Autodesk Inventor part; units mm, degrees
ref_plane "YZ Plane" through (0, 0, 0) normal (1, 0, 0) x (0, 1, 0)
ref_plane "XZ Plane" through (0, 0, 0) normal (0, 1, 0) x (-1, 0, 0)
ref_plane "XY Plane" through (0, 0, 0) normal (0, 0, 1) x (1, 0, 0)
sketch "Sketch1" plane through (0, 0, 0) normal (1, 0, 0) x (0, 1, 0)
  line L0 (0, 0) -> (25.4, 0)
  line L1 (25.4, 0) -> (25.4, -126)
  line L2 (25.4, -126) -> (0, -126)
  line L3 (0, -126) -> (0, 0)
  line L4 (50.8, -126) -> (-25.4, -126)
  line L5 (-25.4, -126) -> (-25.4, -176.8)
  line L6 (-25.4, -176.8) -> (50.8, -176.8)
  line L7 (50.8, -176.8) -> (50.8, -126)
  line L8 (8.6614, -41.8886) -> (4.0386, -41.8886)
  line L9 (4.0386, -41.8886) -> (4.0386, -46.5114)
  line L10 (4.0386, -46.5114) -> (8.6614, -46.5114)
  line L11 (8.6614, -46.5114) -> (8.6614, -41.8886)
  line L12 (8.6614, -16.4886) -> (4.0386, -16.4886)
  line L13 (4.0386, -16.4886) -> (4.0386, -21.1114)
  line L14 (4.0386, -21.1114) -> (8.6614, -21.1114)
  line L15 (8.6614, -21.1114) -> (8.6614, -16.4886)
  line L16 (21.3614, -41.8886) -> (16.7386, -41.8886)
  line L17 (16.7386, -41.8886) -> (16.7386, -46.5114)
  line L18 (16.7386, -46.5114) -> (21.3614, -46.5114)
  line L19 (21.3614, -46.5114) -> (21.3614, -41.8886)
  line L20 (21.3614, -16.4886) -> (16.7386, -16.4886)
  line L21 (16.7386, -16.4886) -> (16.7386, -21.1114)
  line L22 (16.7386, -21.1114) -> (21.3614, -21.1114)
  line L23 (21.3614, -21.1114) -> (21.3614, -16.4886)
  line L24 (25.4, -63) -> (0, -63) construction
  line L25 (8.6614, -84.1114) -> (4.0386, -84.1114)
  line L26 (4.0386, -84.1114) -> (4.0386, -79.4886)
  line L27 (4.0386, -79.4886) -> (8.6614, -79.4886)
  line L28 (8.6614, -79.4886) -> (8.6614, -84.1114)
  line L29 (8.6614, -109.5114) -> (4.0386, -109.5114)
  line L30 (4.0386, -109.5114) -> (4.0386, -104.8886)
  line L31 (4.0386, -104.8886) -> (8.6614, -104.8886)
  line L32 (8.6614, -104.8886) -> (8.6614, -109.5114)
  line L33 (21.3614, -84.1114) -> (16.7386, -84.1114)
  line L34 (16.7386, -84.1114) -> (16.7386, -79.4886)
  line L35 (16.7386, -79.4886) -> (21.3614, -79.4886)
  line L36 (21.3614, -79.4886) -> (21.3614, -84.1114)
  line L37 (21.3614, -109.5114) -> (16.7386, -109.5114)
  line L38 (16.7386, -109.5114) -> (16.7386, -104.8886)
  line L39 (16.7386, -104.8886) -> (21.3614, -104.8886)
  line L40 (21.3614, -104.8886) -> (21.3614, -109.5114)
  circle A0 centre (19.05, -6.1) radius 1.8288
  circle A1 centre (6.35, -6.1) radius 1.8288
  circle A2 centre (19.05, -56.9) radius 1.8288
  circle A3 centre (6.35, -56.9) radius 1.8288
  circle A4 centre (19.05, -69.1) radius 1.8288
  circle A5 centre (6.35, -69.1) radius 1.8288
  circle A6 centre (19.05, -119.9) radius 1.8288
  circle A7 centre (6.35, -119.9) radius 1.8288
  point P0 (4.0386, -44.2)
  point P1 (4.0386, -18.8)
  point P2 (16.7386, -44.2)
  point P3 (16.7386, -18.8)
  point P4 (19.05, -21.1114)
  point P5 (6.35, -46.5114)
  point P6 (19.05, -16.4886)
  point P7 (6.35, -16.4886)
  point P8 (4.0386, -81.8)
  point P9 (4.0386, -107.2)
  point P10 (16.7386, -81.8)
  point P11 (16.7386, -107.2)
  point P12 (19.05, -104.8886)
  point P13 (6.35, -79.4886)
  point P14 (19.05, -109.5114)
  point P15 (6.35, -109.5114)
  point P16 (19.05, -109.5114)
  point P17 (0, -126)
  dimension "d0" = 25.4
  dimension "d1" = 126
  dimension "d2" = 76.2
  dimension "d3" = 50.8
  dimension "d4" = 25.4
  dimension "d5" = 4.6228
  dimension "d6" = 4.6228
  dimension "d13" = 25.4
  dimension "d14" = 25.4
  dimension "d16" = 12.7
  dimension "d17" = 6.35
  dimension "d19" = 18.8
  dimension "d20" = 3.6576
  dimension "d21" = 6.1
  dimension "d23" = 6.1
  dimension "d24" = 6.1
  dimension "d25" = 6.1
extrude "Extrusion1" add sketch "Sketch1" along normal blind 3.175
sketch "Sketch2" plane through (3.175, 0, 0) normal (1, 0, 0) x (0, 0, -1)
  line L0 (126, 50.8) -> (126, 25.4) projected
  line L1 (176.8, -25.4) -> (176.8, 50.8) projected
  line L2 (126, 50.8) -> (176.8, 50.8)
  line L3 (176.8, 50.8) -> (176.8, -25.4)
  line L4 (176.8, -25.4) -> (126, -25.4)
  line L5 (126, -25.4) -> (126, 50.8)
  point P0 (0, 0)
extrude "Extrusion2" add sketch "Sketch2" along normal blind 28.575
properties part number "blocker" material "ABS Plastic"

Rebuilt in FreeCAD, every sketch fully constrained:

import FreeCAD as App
import Part
import Sketcher

V = App.Vector
Q = App.Units.Quantity

doc = App.newDocument("Part")
body = doc.addObject("PartDesign::Body", "Body")

sketch1 = body.newObject("Sketcher::SketchObject", "Sketch")
sketch1.AttachmentSupport = (doc.getObject("YZ_Plane"), [""])
sketch1.MapMode = "FlatFace"
sketch1.addGeometry([
    Part.LineSegment(V(25.4, 0, 0), V(0, 0, 0)),
    Part.LineSegment(V(0, 0, 0), V(0, -126, 0)),
    Part.LineSegment(V(0, -126, 0), V(-25.4, -126, 0)),
    Part.LineSegment(V(-25.4, -126, 0), V(-25.4, -176.8, 0)),
    Part.LineSegment(V(-25.4, -176.8, 0), V(50.8, -176.8, 0)),
    Part.LineSegment(V(50.8, -176.8, 0), V(50.8, -126, 0)),
    Part.LineSegment(V(50.8, -126, 0), V(25.4, -126, 0)),
    Part.LineSegment(V(25.4, -126, 0), V(25.4, 0, 0)),
    Part.Circle(V(6.3, -119.9, 0), V(0, 0, 1), 1.8),
    Part.LineSegment(V(8.7, -104.9, 0), V(8.7, -109.5, 0)),
    Part.LineSegment(V(8.7, -109.5, 0), V(4, -109.5, 0)),
    Part.LineSegment(V(4, -109.5, 0), V(4, -104.9, 0)),
    Part.LineSegment(V(4, -104.9, 0), V(8.7, -104.9, 0)),
    Part.Circle(V(19.1, -119.9, 0), V(0, 0, 1), 1.8),
    Part.LineSegment(V(21.4, -104.9, 0), V(21.4, -109.5, 0)),
    Part.LineSegment(V(21.4, -109.5, 0), V(16.7, -109.5, 0)),
    Part.LineSegment(V(16.7, -109.5, 0), V(16.7, -104.9, 0)),
    Part.LineSegment(V(16.7, -104.9, 0), V(21.4, -104.9, 0)),
    Part.LineSegment(V(8.7, -79.5, 0), V(8.7, -84.1, 0)),
    Part.LineSegment(V(8.7, -84.1, 0), V(4, -84.1, 0)),
    Part.LineSegment(V(4, -84.1, 0), V(4, -79.5, 0)),
    Part.LineSegment(V(4, -79.5, 0), V(8.7, -79.5, 0)),
    Part.Circle(V(6.3, -69.1, 0), V(0, 0, 1), 1.8),
    Part.Circle(V(6.3, -56.9, 0), V(0, 0, 1), 1.8),
    Part.LineSegment(V(4, -41.9, 0), V(8.7, -41.9, 0)),
    Part.LineSegment(V(8.7, -41.9, 0), V(8.7, -46.5, 0)),
    Part.LineSegment(V(8.7, -46.5, 0), V(4, -46.5, 0)),
    Part.LineSegment(V(4, -46.5, 0), V(4, -41.9, 0)),
    Part.LineSegment(V(4, -16.5, 0), V(8.7, -16.5, 0)),
    Part.LineSegment(V(8.7, -16.5, 0), V(8.7, -21.1, 0)),
    Part.LineSegment(V(8.7, -21.1, 0), V(4, -21.1, 0)),
    Part.LineSegment(V(4, -21.1, 0), V(4, -16.5, 0)),
    Part.Circle(V(6.3, -6.1, 0), V(0, 0, 1), 1.8),
    Part.LineSegment(V(21.4, -79.5, 0), V(21.4, -84.1, 0)),
    Part.LineSegment(V(21.4, -84.1, 0), V(16.7, -84.1, 0)),
    Part.LineSegment(V(16.7, -84.1, 0), V(16.7, -79.5, 0)),
    Part.LineSegment(V(16.7, -79.5, 0), V(21.4, -79.5, 0)),
    Part.Circle(V(19.1, -69.1, 0), V(0, 0, 1), 1.8),
    Part.Circle(V(19.1, -56.9, 0), V(0, 0, 1), 1.8),
    Part.LineSegment(V(16.7, -41.9, 0), V(21.4, -41.9, 0)),
    Part.LineSegment(V(21.4, -41.9, 0), V(21.4, -46.5, 0)),
    Part.LineSegment(V(21.4, -46.5, 0), V(16.7, -46.5, 0)),
    Part.LineSegment(V(16.7, -46.5, 0), V(16.7, -41.9, 0)),
    Part.LineSegment(V(16.7, -16.5, 0), V(21.4, -16.5, 0)),
    Part.LineSegment(V(21.4, -16.5, 0), V(21.4, -21.1, 0)),
    Part.LineSegment(V(21.4, -21.1, 0), V(16.7, -21.1, 0)),
    Part.LineSegment(V(16.7, -21.1, 0), V(16.7, -16.5, 0)),
    Part.Circle(V(19.1, -6.1, 0), V(0, 0, 1), 1.8),
], False)
sketch1.addConstraint([
    Sketcher.Constraint("Coincident", 0, 2, 1, 1),
    Sketcher.Constraint("Coincident", 1, 2, 2, 1),
    Sketcher.Constraint("Coincident", 2, 2, 3, 1),
    Sketcher.Constraint("Coincident", 3, 2, 4, 1),
    Sketcher.Constraint("Coincident", 4, 2, 5, 1),
    Sketcher.Constraint("Coincident", 5, 2, 6, 1),
    Sketcher.Constraint("Coincident", 6, 2, 7, 1),
    Sketcher.Constraint("Coincident", 7, 2, 0, 1),
    Sketcher.Constraint("Coincident", 9, 2, 10, 1),
    Sketcher.Constraint("Coincident", 10, 2, 11, 1),
    Sketcher.Constraint("Coincident", 11, 2, 12, 1),
    Sketcher.Constraint("Coincident", 12, 2, 9, 1),
    Sketcher.Constraint("Coincident", 14, 2, 15, 1),
    Sketcher.Constraint("Coincident", 15, 2, 16, 1),
    Sketcher.Constraint("Coincident", 16, 2, 17, 1),
    Sketcher.Constraint("Coincident", 17, 2, 14, 1),
    Sketcher.Constraint("Coincident", 18, 2, 19, 1),
    Sketcher.Constraint("Coincident", 19, 2, 20, 1),
    Sketcher.Constraint("Coincident", 20, 2, 21, 1),
    Sketcher.Constraint("Coincident", 21, 2, 18, 1),
    Sketcher.Constraint("Coincident", 24, 2, 25, 1),
    Sketcher.Constraint("Coincident", 25, 2, 26, 1),
    Sketcher.Constraint("Coincident", 26, 2, 27, 1),
    Sketcher.Constraint("Coincident", 27, 2, 24, 1),
    Sketcher.Constraint("Coincident", 28, 2, 29, 1),
    Sketcher.Constraint("Coincident", 29, 2, 30, 1),
    Sketcher.Constraint("Coincident", 30, 2, 31, 1),
    Sketcher.Constraint("Coincident", 31, 2, 28, 1),
    Sketcher.Constraint("Coincident", 33, 2, 34, 1),
    Sketcher.Constraint("Coincident", 34, 2, 35, 1),
    Sketcher.Constraint("Coincident", 35, 2, 36, 1),
    Sketcher.Constraint("Coincident", 36, 2, 33, 1),
    Sketcher.Constraint("Coincident", 39, 2, 40, 1),
    Sketcher.Constraint("Coincident", 40, 2, 41, 1),
    Sketcher.Constraint("Coincident", 41, 2, 42, 1),
    Sketcher.Constraint("Coincident", 42, 2, 39, 1),
    Sketcher.Constraint("Coincident", 43, 2, 44, 1),
    Sketcher.Constraint("Coincident", 44, 2, 45, 1),
    Sketcher.Constraint("Coincident", 45, 2, 46, 1),
    Sketcher.Constraint("Coincident", 46, 2, 43, 1),
    Sketcher.Constraint("Horizontal", 0),
    Sketcher.Constraint("Vertical", 1),
    Sketcher.Constraint("Horizontal", 2),
    Sketcher.Constraint("Vertical", 3),
    Sketcher.Constraint("Horizontal", 4),
    Sketcher.Constraint("Vertical", 5),
    Sketcher.Constraint("Horizontal", 6),
    Sketcher.Constraint("Vertical", 7),
    Sketcher.Constraint("Vertical", 9),
    Sketcher.Constraint("Horizontal", 10),
    Sketcher.Constraint("Vertical", 11),
    Sketcher.Constraint("Horizontal", 12),
    Sketcher.Constraint("Vertical", 14),
    Sketcher.Constraint("Horizontal", 15),
    Sketcher.Constraint("Vertical", 16),
    Sketcher.Constraint("Horizontal", 17),
    Sketcher.Constraint("Vertical", 18),
    Sketcher.Constraint("Horizontal", 19),
    Sketcher.Constraint("Vertical", 20),
    Sketcher.Constraint("Horizontal", 21),
    Sketcher.Constraint("Horizontal", 24),
    Sketcher.Constraint("Vertical", 25),
    Sketcher.Constraint("Horizontal", 26),
    Sketcher.Constraint("Vertical", 27),
    Sketcher.Constraint("Horizontal", 28),
    Sketcher.Constraint("Vertical", 29),
    Sketcher.Constraint("Horizontal", 30),
    Sketcher.Constraint("Vertical", 31),
    Sketcher.Constraint("Vertical", 33),
    Sketcher.Constraint("Horizontal", 34),
    Sketcher.Constraint("Vertical", 35),
    Sketcher.Constraint("Horizontal", 36),
    Sketcher.Constraint("Horizontal", 39),
    Sketcher.Constraint("Vertical", 40),
    Sketcher.Constraint("Horizontal", 41),
    Sketcher.Constraint("Vertical", 42),
    Sketcher.Constraint("Horizontal", 43),
    Sketcher.Constraint("Vertical", 44),
    Sketcher.Constraint("Horizontal", 45),
    Sketcher.Constraint("Vertical", 46),
    Sketcher.Constraint("Coincident", 0, 2, -1, 1),
    Sketcher.Constraint("Equal", 8, 13),
    Sketcher.Constraint("Equal", 13, 22),
    Sketcher.Constraint("Equal", 22, 23),
    Sketcher.Constraint("Equal", 23, 32),
    Sketcher.Constraint("Equal", 32, 37),
    Sketcher.Constraint("Equal", 37, 38),
    Sketcher.Constraint("Equal", 38, 47),
    Sketcher.Constraint("Symmetric", 2, 2, 6, 2, -2),
    Sketcher.Constraint("Horizontal", 8, 3, 13, 3),
    Sketcher.Constraint("Horizontal", 22, 3, 37, 3),
    Sketcher.Constraint("Horizontal", 23, 3, 38, 3),
    Sketcher.Constraint("Horizontal", 32, 3, 47, 3),
    Sketcher.Constraint("Horizontal", 10, 2, 14, 2),
    Sketcher.Constraint("Horizontal", 12, 2, 16, 2),
    Sketcher.Constraint("Horizontal", 19, 2, 33, 2),
    Sketcher.Constraint("Horizontal", 21, 2, 35, 2),
    Sketcher.Constraint("Horizontal", 27, 2, 39, 2),
    Sketcher.Constraint("Horizontal", 26, 2, 40, 2),
    Sketcher.Constraint("Horizontal", 31, 2, 43, 2),
    Sketcher.Constraint("Horizontal", 30, 2, 44, 2),
    Sketcher.Constraint("Vertical", 8, 3, 22, 3),
    Sketcher.Constraint("Vertical", 22, 3, 23, 3),
    Sketcher.Constraint("Vertical", 23, 3, 32, 3),
    Sketcher.Constraint("Vertical", 13, 3, 37, 3),
    Sketcher.Constraint("Vertical", 37, 3, 38, 3),
    Sketcher.Constraint("Vertical", 38, 3, 47, 3),
    Sketcher.Constraint("Vertical", 12, 2, 18, 2),
    Sketcher.Constraint("Vertical", 11, 2, 19, 2),
    Sketcher.Constraint("Vertical", 21, 2, 24, 2),
    Sketcher.Constraint("Vertical", 20, 2, 26, 2),
    Sketcher.Constraint("Vertical", 25, 2, 28, 2),
    Sketcher.Constraint("Vertical", 27, 2, 30, 2),
    Sketcher.Constraint("Vertical", 17, 2, 33, 2),
    Sketcher.Constraint("Vertical", 16, 2, 34, 2),
    Sketcher.Constraint("Vertical", 36, 2, 39, 2),
    Sketcher.Constraint("Vertical", 35, 2, 41, 2),
    Sketcher.Constraint("Vertical", 40, 2, 43, 2),
    Sketcher.Constraint("Vertical", 42, 2, 45, 2),
    Sketcher.Constraint("Equal", 2, 6),
    Sketcher.Constraint("Equal", 12, 15),
    Sketcher.Constraint("Equal", 45, 9),
    Sketcher.Constraint("Equal", 16, 18),
    Sketcher.Constraint("Equal", 20, 25),
    Sketcher.Constraint("Equal", 27, 29),
    Sketcher.Constraint("DistanceX", 0, 2, 0, 1, Q("1 in")),
    Sketcher.Constraint("DistanceY", 3, 2, 3, 1, Q("2 in")),
    Sketcher.Constraint("Diameter", 8, Q("0.144 in")),
    Sketcher.Constraint("DistanceY", 8, 3, 22, 3, Q("2 in")),
    Sketcher.Constraint("DistanceY", 23, 3, 32, 3, Q("2 in")),
    Sketcher.Constraint("DistanceY", 24, 2, 28, 2, Q("1 in")),
    Sketcher.Constraint("DistanceX", 8, 3, 13, 3, Q("0.5 in")),
    Sketcher.Constraint("DistanceX", 9, 2, 14, 2, Q("0.5 in")),
    Sketcher.Constraint("DistanceX", 10, 2, 10, 1, Q("0.182 in")),
    Sketcher.Constraint("DistanceX", -1, 1, 8, 3, Q("0.25 in")),
    Sketcher.Constraint("DistanceY", 1, 2, 1, 1, 126.0),
    Sketcher.Constraint("DistanceY", 32, 3, -1, 1, 6.1),
    Sketcher.Constraint("DistanceY", 1, 2, 8, 3, 6.1),
    Sketcher.Constraint("DistanceX", -1, 1, 9, 2, Q("0.341 in")),
    Sketcher.Constraint("DistanceY", 8, 3, 9, 2, Q("0.409 in")),
    Sketcher.Constraint("DistanceY", 18, 2, 22, 3, Q("0.591 in")),
    Sketcher.Constraint("DistanceY", 23, 3, 24, 2, Q("0.591 in")),
])
pad1 = body.newObject("PartDesign::Pad", "Pad")
pad1.Profile = sketch1
pad1.Length = Q("0.125 in")

sketch2 = body.newObject("Sketcher::SketchObject", "Sketch001")
sketch2.AttachmentSupport = (doc.getObject("YZ_Plane"), [""])
sketch2.MapMode = "FlatFace"
sketch2.AttachmentOffset = App.Placement(V(0, 0, 0.125 * 25.4), App.Rotation())
sketch2.addGeometry([
    Part.LineSegment(V(51, -177, 0), V(51, -126, 0)),
    Part.LineSegment(V(51, -126, 0), V(-25, -126, 0)),
    Part.LineSegment(V(-25, -126, 0), V(-25, -177, 0)),
    Part.LineSegment(V(-25, -177, 0), V(51, -177, 0)),
], False)
sketch2.addConstraint([
    Sketcher.Constraint("Coincident", 0, 2, 1, 1),
    Sketcher.Constraint("Coincident", 1, 2, 2, 1),
    Sketcher.Constraint("Coincident", 2, 2, 3, 1),
    Sketcher.Constraint("Coincident", 3, 2, 0, 1),
    Sketcher.Constraint("Vertical", 0),
    Sketcher.Constraint("Horizontal", 1),
    Sketcher.Constraint("Vertical", 2),
    Sketcher.Constraint("Horizontal", 3),
    Sketcher.Constraint("DistanceX", 1, 2, 1, 1, Q("3 in")),
    Sketcher.Constraint("DistanceY", 0, 1, 0, 2, Q("2 in")),
    Sketcher.Constraint("DistanceX", -1, 1, 0, 2, Q("2 in")),
    Sketcher.Constraint("DistanceY", 0, 2, -1, 1, 126.0),
])
pad2 = body.newObject("PartDesign::Pad", "Pad001")
pad2.Profile = sketch2
pad2.Length = Q("1.125 in")

doc.recompute()
